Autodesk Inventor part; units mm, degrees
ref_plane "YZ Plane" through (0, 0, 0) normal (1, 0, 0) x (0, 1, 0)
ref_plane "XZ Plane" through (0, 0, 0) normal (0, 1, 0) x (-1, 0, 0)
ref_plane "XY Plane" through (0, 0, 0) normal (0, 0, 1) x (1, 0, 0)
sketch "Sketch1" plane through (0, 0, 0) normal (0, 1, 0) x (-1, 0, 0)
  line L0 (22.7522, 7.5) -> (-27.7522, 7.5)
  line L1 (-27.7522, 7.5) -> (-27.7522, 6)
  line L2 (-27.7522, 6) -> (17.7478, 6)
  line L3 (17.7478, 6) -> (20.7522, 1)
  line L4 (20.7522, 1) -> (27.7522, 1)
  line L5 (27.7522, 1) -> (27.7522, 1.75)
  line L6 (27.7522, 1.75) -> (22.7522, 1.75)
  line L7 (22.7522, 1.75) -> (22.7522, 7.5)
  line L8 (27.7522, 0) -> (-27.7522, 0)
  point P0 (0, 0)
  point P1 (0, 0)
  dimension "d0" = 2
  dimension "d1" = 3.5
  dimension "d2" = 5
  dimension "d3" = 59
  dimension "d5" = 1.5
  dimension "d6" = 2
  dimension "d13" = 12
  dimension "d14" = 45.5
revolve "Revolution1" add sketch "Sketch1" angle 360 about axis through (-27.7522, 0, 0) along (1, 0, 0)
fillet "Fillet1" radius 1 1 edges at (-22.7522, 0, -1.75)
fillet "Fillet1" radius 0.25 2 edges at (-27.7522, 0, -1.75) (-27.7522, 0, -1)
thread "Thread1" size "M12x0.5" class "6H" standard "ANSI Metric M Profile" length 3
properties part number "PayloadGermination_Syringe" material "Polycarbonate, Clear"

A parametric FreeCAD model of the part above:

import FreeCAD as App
import Part
import Sketcher
from FreeCAD import Vector
Q = App.Units.Quantity


def edges_at(feature, points):
    """Names of the edges that pass closest to the given points."""
    edges = feature.Shape.Edges
    near = lambda p: min(range(len(edges)), key=lambda i: edges[i].distToShape(Part.Vertex(*p))[0])
    return sorted({f"Edge{near(p) + 1}" for p in points})


def add_polygon(sketch, points):
    """Adds a closed chain of lines whose ends are joined by coincident constraints."""
    first, n = sketch.GeometryCount, len(points)
    for a, b in zip(points, points[1:] + points[:1]):
        sketch.addGeometry(Part.LineSegment(App.Vector(*a, 0), App.Vector(*b, 0)), False)
    for i in range(n):
        sketch.addConstraint(Sketcher.Constraint("Coincident", first + i, 2, first + (i + 1) % n, 1))

doc = App.newDocument("Part")
body = doc.addObject("PartDesign::Body", "Body")

# Sketch on XZ plane
sketch1 = doc.addObject("Sketcher::SketchObject", "Sketch")
body.addObject(sketch1)
sketch1.AttachmentSupport = (doc.XZ_Plane, [""])
sketch1.MapMode = "FlatFace"
add_polygon(sketch1, [(-22.7522, 1.75), (-22.7522, 7.5), (27.7522, 7.5), (27.7522, 6), (-17.7478, 6), (-20.7522, 1), (-27.7522, 1), (-27.7522, 1.75)])  # lines 0-7
sketch1.addConstraint(Sketcher.Constraint("Vertical", 0))
sketch1.addConstraint(Sketcher.Constraint("Horizontal", 1))
sketch1.addConstraint(Sketcher.Constraint("Vertical", 2))
sketch1.addConstraint(Sketcher.Constraint("Horizontal", 3))
sketch1.addConstraint(Sketcher.Constraint("Horizontal", 5))
sketch1.addConstraint(Sketcher.Constraint("Vertical", 6))
sketch1.addConstraint(Sketcher.Constraint("Horizontal", 7))
sketch1.addConstraint(Sketcher.Constraint("DistanceX", 7, 1, 7, 2, Q("5 mm")))
sketch1.addConstraint(Sketcher.Constraint("DistanceX", 3, 2, 3, 1, Q("45.5 mm")))
sketch1.addConstraint(Sketcher.Constraint("DistanceY", 2, 2, 2, 1, Q("1.5 mm")))
sketch1.addConstraint(Sketcher.Constraint("DistanceY", 4, 2, 3, 2, Q("5 mm")))
sketch1.addConstraint(Sketcher.Constraint("DistanceX", 0, 2, 4, 2, Q("2 mm")))
sketch1.addConstraint(Sketcher.Constraint("Angle", 4, Q("-121.0008 deg")))
sketch1.addConstraint(Sketcher.Constraint("DistanceY", -1, 1, 2, 2, Q("6 mm")))
sketch1.addConstraint(Sketcher.Constraint("DistanceY", 0, 1, 0, 2, Q("5.75 mm")))
sketch1.addConstraint(Sketcher.Constraint("DistanceX", 0, 2, -1, 1, Q("22.7522 mm")))
revolution = doc.addObject("PartDesign::Revolution", "Revolution")
body.addObject(revolution)
revolution.Profile = sketch1
revolution.ReferenceAxis = (sketch1, ["H_Axis"])
revolution.Angle = 360
doc.recompute()

fillet = doc.addObject("PartDesign::Fillet", "Fillet")
body.addObject(fillet)
fillet.Base = (revolution, edges_at(revolution, [(-22.752, 0, -1.75)]))
fillet.Radius = 1
doc.recompute()

fillet2 = doc.addObject("PartDesign::Fillet", "Fillet001")
body.addObject(fillet2)
fillet2.Base = (fillet, edges_at(fillet, [(-27.752, 0, -1.75), (-27.752, 0, -1)]))
fillet2.Radius = 0.25

doc.recompute()
